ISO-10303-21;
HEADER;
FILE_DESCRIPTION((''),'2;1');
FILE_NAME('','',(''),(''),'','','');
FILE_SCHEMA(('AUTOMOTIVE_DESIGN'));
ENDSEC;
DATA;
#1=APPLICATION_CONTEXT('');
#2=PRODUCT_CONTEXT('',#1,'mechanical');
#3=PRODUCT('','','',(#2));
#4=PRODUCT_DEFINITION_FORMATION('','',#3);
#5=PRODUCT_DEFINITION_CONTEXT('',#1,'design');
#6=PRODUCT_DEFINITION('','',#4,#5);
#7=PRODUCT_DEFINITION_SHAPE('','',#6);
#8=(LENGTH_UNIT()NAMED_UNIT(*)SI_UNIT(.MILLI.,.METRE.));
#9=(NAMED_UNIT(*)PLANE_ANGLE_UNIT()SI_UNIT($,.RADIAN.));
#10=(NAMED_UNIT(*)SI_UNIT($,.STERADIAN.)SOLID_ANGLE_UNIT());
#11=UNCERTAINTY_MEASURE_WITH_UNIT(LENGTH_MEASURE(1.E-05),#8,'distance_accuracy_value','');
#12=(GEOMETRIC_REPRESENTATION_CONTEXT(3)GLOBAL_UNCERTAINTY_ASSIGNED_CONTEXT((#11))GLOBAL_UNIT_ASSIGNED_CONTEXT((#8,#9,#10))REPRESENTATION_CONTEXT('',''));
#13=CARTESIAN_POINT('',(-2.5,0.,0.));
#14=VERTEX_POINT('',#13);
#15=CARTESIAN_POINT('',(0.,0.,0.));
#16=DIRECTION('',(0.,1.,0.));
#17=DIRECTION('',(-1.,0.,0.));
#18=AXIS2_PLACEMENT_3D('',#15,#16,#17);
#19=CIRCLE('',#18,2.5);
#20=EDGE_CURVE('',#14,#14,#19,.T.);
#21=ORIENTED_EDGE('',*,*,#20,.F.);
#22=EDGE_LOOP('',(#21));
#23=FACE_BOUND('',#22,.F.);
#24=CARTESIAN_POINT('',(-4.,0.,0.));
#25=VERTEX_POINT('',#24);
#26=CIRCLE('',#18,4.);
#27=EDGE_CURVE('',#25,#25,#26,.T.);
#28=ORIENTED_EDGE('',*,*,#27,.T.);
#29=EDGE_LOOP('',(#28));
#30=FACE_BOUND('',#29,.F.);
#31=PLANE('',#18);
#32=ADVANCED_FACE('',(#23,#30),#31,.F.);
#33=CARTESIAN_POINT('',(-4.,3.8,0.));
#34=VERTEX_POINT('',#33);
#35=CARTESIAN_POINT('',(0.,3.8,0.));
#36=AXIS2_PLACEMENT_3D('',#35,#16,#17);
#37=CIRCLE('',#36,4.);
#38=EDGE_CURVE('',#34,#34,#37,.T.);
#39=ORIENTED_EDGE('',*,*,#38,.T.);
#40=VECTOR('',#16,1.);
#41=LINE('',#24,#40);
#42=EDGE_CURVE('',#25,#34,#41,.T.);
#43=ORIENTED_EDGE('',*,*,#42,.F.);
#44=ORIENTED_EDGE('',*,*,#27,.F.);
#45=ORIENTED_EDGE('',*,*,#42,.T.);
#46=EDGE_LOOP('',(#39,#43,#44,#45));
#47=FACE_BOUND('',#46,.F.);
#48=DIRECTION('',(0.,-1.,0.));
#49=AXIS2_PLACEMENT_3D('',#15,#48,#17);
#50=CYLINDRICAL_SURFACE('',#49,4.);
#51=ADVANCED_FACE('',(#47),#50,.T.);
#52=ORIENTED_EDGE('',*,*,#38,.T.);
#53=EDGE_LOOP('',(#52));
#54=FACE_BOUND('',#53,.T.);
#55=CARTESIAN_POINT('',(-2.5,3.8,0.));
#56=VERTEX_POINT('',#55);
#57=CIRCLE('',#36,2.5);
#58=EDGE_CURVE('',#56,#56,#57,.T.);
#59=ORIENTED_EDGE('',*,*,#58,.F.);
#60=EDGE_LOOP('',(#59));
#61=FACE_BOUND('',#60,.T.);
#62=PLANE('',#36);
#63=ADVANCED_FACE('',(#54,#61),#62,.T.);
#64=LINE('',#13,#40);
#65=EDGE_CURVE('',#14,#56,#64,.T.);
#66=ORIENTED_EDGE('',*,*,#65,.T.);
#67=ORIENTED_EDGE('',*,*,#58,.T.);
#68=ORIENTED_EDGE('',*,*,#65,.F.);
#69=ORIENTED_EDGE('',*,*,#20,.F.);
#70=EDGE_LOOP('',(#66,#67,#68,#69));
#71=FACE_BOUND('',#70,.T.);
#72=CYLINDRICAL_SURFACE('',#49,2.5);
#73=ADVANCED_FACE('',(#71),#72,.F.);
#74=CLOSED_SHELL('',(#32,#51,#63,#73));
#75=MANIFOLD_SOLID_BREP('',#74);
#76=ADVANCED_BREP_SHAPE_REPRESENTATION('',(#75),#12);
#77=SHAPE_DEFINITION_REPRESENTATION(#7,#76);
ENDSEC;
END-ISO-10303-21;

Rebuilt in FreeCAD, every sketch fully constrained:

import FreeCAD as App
import Part
import Sketcher
from FreeCAD import Vector

doc = App.newDocument("Part")
body = doc.addObject("PartDesign::Body", "Body")

# Sketch on XZ plane
sketch1 = body.newObject("Sketcher::SketchObject", "Sketch")
sketch1.AttachmentSupport = (doc.getObject("XZ_Plane"), [""])
sketch1.MapMode = "FlatFace"
sketch1.addGeometry([
    Part.Circle(Vector(0, 0, 0), Vector(0, 0, 1), 4),
    Part.Circle(Vector(0, 0, 0), Vector(0, 0, 1), 2.5),
], False)
sketch1.addConstraint([
    Sketcher.Constraint("Coincident", 0, 3, -1, 1),
    Sketcher.Constraint("Coincident", 1, 3, -1, 1),
    Sketcher.Constraint("Diameter", 0, 8.0),
    Sketcher.Constraint("Diameter", 1, 5.0),
])
pad1 = body.newObject("PartDesign::Pad", "Pad")
pad1.Profile = sketch1
pad1.Length = 3.8
pad1.Reversed = True

doc.recompute()
